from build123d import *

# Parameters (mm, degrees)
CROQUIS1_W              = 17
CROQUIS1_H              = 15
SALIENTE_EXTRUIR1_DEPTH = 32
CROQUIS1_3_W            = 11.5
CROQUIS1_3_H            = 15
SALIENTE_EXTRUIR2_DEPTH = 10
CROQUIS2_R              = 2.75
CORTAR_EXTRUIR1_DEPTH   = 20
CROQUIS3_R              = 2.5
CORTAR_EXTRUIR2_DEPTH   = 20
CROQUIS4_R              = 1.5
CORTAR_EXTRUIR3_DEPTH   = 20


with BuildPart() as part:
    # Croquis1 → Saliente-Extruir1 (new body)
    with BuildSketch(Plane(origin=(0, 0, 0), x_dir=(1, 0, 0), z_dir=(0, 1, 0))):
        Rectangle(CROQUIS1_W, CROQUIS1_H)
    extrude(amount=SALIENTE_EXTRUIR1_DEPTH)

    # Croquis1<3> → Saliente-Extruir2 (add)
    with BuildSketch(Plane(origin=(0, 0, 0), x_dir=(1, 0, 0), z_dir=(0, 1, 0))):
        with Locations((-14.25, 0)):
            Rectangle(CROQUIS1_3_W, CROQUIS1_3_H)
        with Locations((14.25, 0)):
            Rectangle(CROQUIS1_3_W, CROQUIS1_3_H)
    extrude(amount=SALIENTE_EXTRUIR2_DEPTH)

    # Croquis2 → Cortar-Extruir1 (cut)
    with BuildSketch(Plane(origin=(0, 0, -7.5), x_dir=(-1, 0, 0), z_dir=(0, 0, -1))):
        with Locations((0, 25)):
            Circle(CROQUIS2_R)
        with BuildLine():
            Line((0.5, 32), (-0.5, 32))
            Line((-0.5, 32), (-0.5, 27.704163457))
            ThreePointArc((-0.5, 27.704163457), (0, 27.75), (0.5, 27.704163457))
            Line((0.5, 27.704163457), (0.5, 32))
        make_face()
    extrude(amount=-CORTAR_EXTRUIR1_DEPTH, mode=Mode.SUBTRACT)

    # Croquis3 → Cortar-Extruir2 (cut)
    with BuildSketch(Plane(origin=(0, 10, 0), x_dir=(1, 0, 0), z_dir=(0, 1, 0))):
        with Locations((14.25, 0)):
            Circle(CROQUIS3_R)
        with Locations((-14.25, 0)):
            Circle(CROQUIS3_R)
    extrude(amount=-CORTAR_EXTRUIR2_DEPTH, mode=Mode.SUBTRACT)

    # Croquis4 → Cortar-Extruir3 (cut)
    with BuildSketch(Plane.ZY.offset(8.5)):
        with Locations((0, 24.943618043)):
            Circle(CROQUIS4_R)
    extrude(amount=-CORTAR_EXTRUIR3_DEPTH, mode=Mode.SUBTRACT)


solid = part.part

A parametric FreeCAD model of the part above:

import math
import FreeCAD as App
import Part
import Sketcher

V = App.Vector


def add_polygon(sketch, points):
    """Adds a closed chain of lines whose ends are joined by coincident constraints."""
    first, n = sketch.GeometryCount, len(points)
    for a, b in zip(points, points[1:] + points[:1]):
        sketch.addGeometry(Part.LineSegment(App.Vector(*a, 0), App.Vector(*b, 0)), False)
    for i in range(n):
        sketch.addConstraint(Sketcher.Constraint("Coincident", first + i, 2, first + (i + 1) % n, 1))

doc = App.newDocument("Part")
body = doc.addObject("PartDesign::Body", "Body")

sketch1 = body.newObject("Sketcher::SketchObject", "Sketch")
sketch1.AttachmentSupport = (doc.getObject("XZ_Plane"), [""])
sketch1.MapMode = "FlatFace"
add_polygon(sketch1, [(-8.5, -7.5), (-8.5, 7.5), (8.5, 7.5), (8.5, -7.5)])
sketch1.addConstraint([
    Sketcher.Constraint("Vertical", 0),
    Sketcher.Constraint("Horizontal", 1),
    Sketcher.Constraint("Vertical", 2),
    Sketcher.Constraint("Horizontal", 3),
    Sketcher.Constraint("Symmetric", 0, 2, 2, 2, -1, 1),
    Sketcher.Constraint("DistanceX", 1, 1, 1, 2, 17.0),
    Sketcher.Constraint("DistanceY", 0, 1, 0, 2, 15.0),
])
pad1 = body.newObject("PartDesign::Pad", "Pad")
pad1.Profile = sketch1
pad1.Length = 32
pad1.Reversed = True

sketch2 = body.newObject("Sketcher::SketchObject", "Sketch001")
sketch2.AttachmentSupport = (doc.getObject("XZ_Plane"), [""])
sketch2.MapMode = "FlatFace"
add_polygon(sketch2, [(-20, -7.5), (-20, 7.5), (-8.5, 7.5), (-8.5, -7.5)])
add_polygon(sketch2, [(8.5, -7.5), (8.5, 7.5), (20, 7.5), (20, -7.5)])
sketch2.addConstraint([
    Sketcher.Constraint("Vertical", 0),
    Sketcher.Constraint("Horizontal", 1),
    Sketcher.Constraint("Vertical", 2),
    Sketcher.Constraint("Horizontal", 3),
    Sketcher.Constraint("Vertical", 4),
    Sketcher.Constraint("Horizontal", 5),
    Sketcher.Constraint("Vertical", 6),
    Sketcher.Constraint("Horizontal", 7),
    Sketcher.Constraint("Symmetric", 2, 2, 4, 2, -1, 1),
    Sketcher.Constraint("Symmetric", 0, 2, 6, 2, -1, 1),
    Sketcher.Constraint("Horizontal", 1, 2, 4, 2),
    Sketcher.Constraint("DistanceY", 0, 1, 0, 2, 15.0),
    Sketcher.Constraint("DistanceX", 1, 1, 1, 2, 11.5),
    Sketcher.Constraint("DistanceX", 0, 2, -1, 1, 20.0),
])
pad2 = body.newObject("PartDesign::Pad", "Pad001")
pad2.Profile = sketch2
pad2.Length = 10
pad2.Reversed = True

sketch3 = body.newObject("Sketcher::SketchObject", "Sketch002")
sketch3.AttachmentSupport = (doc.getObject("XY_Plane"), [""])
sketch3.MapMode = "FlatFace"
sketch3.AttachmentOffset = App.Placement(V(0, 0, -7.5), App.Rotation())
sketch3.addGeometry([
    Part.LineSegment(V(-0.5, 27.704163, 0), V(-0.5, 32, 0)),
    Part.LineSegment(V(-0.5, 32, 0), V(0.5, 32, 0)),
    Part.LineSegment(V(0.5, 32, 0), V(0.5, 27.704163, 0)),
    Part.ArcOfCircle(Part.Circle(V(0, 25, 0), V(0, 0, 1), 2.75), math.radians(100.475682), math.radians(439.524318)),
], False)
sketch3.addConstraint([
    Sketcher.Constraint("Coincident", 0, 2, 1, 1),
    Sketcher.Constraint("Coincident", 1, 2, 2, 1),
    Sketcher.Constraint("Coincident", 2, 2, 3, 2),
    Sketcher.Constraint("Coincident", 3, 1, 0, 1),
    Sketcher.Constraint("Vertical", 0),
    Sketcher.Constraint("Horizontal", 1),
    Sketcher.Constraint("Vertical", 2),
    Sketcher.Constraint("Symmetric", 2, 2, 3, 1, -2),
    Sketcher.Constraint("DistanceX", 1, 1, 1, 2, 1.0),
    Sketcher.Constraint("Radius", 3, 2.75),
    Sketcher.Constraint("DistanceY", -1, 1, 3, 3, 25.0),
    Sketcher.Constraint("DistanceY", -1, 1, 0, 2, 32.0),
])
pocket1 = body.newObject("PartDesign::Pocket", "Pocket")
pocket1.Profile = sketch3
pocket1.Length = 20
pocket1.Reversed = True

sketch4 = body.newObject("Sketcher::SketchObject", "Sketch003")
sketch4.AttachmentSupport = (doc.getObject("XZ_Plane"), [""])
sketch4.MapMode = "FlatFace"
sketch4.AttachmentOffset = App.Placement(V(0, 0, -10), App.Rotation())
sketch4.addGeometry([
    Part.Circle(V(14.25, 0, 0), V(0, 0, 1), 2.5),
    Part.Circle(V(-14.25, 0, 0), V(0, 0, 1), 2.5),
], False)
sketch4.addConstraint([
    Sketcher.Constraint("Equal", 0, 1),
    Sketcher.Constraint("Symmetric", 0, 3, 1, 3, -1, 1),
    Sketcher.Constraint("PointOnObject", 0, 3, -1),
    Sketcher.Constraint("Diameter", 0, 5.0),
    Sketcher.Constraint("DistanceX", 1, 3, 0, 3, 28.5),
])
pocket2 = body.newObject("PartDesign::Pocket", "Pocket001")
pocket2.Profile = sketch4
pocket2.Length = 20
pocket2.Reversed = True

sketch5 = body.newObject("Sketcher::SketchObject", "Sketch004")
sketch5.AttachmentSupport = (doc.getObject("YZ_Plane"), [""])
sketch5.MapMode = "FlatFace"
sketch5.AttachmentOffset = App.Placement(V(0, 0, -8.5), App.Rotation())
sketch5.addGeometry(Part.Circle(V(24.943618, 0, 0), V(0, 0, 1), 1.5), False)
sketch5.addConstraint([
    Sketcher.Constraint("PointOnObject", 0, 3, -1),
    Sketcher.Constraint("Diameter", 0, 3.0),
    Sketcher.Constraint("DistanceX", -1, 1, 0, 3, 24.943618),
])
pocket3 = body.newObject("PartDesign::Pocket", "Pocket002")
pocket3.Profile = sketch5
pocket3.Length = 20
pocket3.Reversed = True

doc.recompute()
